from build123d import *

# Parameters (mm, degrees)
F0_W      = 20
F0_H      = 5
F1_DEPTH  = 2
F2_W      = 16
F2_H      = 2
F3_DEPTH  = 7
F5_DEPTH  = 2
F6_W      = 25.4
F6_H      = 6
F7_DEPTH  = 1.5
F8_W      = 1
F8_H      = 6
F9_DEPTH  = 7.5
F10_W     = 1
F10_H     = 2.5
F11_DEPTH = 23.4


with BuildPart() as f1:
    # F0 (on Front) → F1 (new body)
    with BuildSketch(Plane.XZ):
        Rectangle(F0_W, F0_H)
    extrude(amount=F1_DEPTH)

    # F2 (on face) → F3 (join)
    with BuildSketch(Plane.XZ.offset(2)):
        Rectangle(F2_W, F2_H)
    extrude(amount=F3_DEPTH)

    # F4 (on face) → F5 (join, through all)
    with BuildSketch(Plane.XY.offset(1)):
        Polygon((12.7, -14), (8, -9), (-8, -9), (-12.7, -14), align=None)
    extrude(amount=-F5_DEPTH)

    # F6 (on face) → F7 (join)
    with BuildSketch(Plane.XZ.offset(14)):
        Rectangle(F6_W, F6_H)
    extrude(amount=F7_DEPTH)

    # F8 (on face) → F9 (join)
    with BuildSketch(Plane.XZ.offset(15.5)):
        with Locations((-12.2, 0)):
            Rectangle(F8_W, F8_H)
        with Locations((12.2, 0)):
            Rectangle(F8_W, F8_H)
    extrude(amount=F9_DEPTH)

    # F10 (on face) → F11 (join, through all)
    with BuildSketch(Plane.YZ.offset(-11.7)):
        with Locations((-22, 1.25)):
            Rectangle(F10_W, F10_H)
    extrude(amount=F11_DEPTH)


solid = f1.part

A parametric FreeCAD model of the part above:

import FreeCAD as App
import Part
import Sketcher
Q = App.Units.Quantity


def add_polygon(sketch, points):
    """Adds a closed chain of lines whose ends are joined by coincident constraints."""
    first, n = sketch.GeometryCount, len(points)
    for a, b in zip(points, points[1:] + points[:1]):
        sketch.addGeometry(Part.LineSegment(App.Vector(*a, 0), App.Vector(*b, 0)), False)
    for i in range(n):
        sketch.addConstraint(Sketcher.Constraint("Coincident", first + i, 2, first + (i + 1) % n, 1))

doc = App.newDocument("Part")
body = doc.addObject("PartDesign::Body", "Body")

sketch1 = body.newObject("Sketcher::SketchObject", "Sketch")
sketch1.AttachmentSupport = (doc.getObject("XZ_Plane"), [""])
sketch1.MapMode = "FlatFace"
add_polygon(sketch1, [(-10, 2), (-10, -2), (10, -2), (10, 2)])
sketch1.addConstraint([
    Sketcher.Constraint("Vertical", 0),
    Sketcher.Constraint("Horizontal", 1),
    Sketcher.Constraint("Vertical", 2),
    Sketcher.Constraint("Horizontal", 3),
    Sketcher.Constraint("Symmetric", 0, 2, 2, 2, -1, 1),
    Sketcher.Constraint("DistanceX", 1, 1, 1, 2, Q("20 mm")),
    Sketcher.Constraint("DistanceY", 0, 2, 0, 1, Q("5 mm")),
])
pad1 = body.newObject("PartDesign::Pad", "Pad")
pad1.Profile = sketch1
pad1.Length = 2

sketch2 = body.newObject("Sketcher::SketchObject", "Sketch001")
sketch2.AttachmentSupport = (doc.getObject("XZ_Plane"), [""])
sketch2.MapMode = "FlatFace"
sketch2.AttachmentOffset = App.Placement(App.Vector(0, 0, 2), App.Rotation())
add_polygon(sketch2, [(-8, 1), (-8, -1), (8, -1), (8, 1)])
sketch2.addConstraint([
    Sketcher.Constraint("Vertical", 0),
    Sketcher.Constraint("Horizontal", 1),
    Sketcher.Constraint("Vertical", 2),
    Sketcher.Constraint("Horizontal", 3),
    Sketcher.Constraint("Symmetric", 0, 2, 2, 2, -1, 1),
    Sketcher.Constraint("DistanceX", 1, 1, 1, 2, Q("16 mm")),
    Sketcher.Constraint("DistanceY", 0, 2, 0, 1, Q("2 mm")),
])
pad2 = body.newObject("PartDesign::Pad", "Pad001")
pad2.Profile = sketch2
pad2.Length = 7

sketch3 = body.newObject("Sketcher::SketchObject", "Sketch002")
sketch3.AttachmentSupport = (doc.getObject("XY_Plane"), [""])
sketch3.MapMode = "FlatFace"
sketch3.AttachmentOffset = App.Placement(App.Vector(0, 0, 1), App.Rotation())
add_polygon(sketch3, [(13, -14), (8, -9), (-8, -9), (-13, -14)])
sketch3.addConstraint([
    Sketcher.Constraint("Horizontal", 1),
    Sketcher.Constraint("Horizontal", 3),
    Sketcher.Constraint("Equal", 0, 2),
    Sketcher.Constraint("DistanceX", 1, 2, 1, 1, Q("16 mm")),
    Sketcher.Constraint("DistanceX", 3, 1, 3, 2, Q("25.4 mm")),
    Sketcher.Constraint("DistanceX", -1, 1, 0, 2, Q("8 mm")),
    Sketcher.Constraint("DistanceY", 0, 2, -1, 1, Q("9 mm")),
    Sketcher.Constraint("DistanceY", 2, 2, -1, 1, Q("14 mm")),
])
pad3 = body.newObject("PartDesign::Pad", "Pad002")
pad3.Profile = sketch3
pad3.Length = 2
pad3.Reversed = True

sketch4 = body.newObject("Sketcher::SketchObject", "Sketch003")
sketch4.AttachmentSupport = (doc.getObject("XZ_Plane"), [""])
sketch4.MapMode = "FlatFace"
sketch4.AttachmentOffset = App.Placement(App.Vector(0, 0, 14), App.Rotation())
add_polygon(sketch4, [(-13, 3), (-13, -3), (13, -3), (13, 3)])
sketch4.addConstraint([
    Sketcher.Constraint("Vertical", 0),
    Sketcher.Constraint("Horizontal", 1),
    Sketcher.Constraint("Vertical", 2),
    Sketcher.Constraint("Horizontal", 3),
    Sketcher.Constraint("Symmetric", 0, 2, 2, 2, -1, 1),
    Sketcher.Constraint("DistanceY", 0, 2, 0, 1, Q("6 mm")),
    Sketcher.Constraint("DistanceX", 1, 1, 1, 2, Q("25.4 mm")),
])
pad4 = body.newObject("PartDesign::Pad", "Pad003")
pad4.Profile = sketch4
pad4.Length = 1.5

sketch5 = body.newObject("Sketcher::SketchObject", "Sketch004")
sketch5.AttachmentSupport = (doc.getObject("XZ_Plane"), [""])
sketch5.MapMode = "FlatFace"
sketch5.AttachmentOffset = App.Placement(App.Vector(0, 0, 15.5), App.Rotation())
add_polygon(sketch5, [(-12.7, 3), (-12.7, -3), (-11.7, -3), (-11.7, 3)])
add_polygon(sketch5, [(11.7, 3), (11.7, -3), (12.7, -3), (12.7, 3)])
sketch5.addConstraint([
    Sketcher.Constraint("Vertical", 0),
    Sketcher.Constraint("Horizontal", 1),
    Sketcher.Constraint("Vertical", 2),
    Sketcher.Constraint("Horizontal", 3),
    Sketcher.Constraint("Vertical", 4),
    Sketcher.Constraint("Horizontal", 5),
    Sketcher.Constraint("Vertical", 6),
    Sketcher.Constraint("Horizontal", 7),
    Sketcher.Constraint("Symmetric", 2, 2, 4, 2, -1, 1),
    Sketcher.Constraint("Symmetric", 0, 2, 6, 2, -1, 1),
    Sketcher.Constraint("Horizontal", 1, 2, 4, 2),
    Sketcher.Constraint("DistanceX", 1, 1, 1, 2, Q("1 mm")),
    Sketcher.Constraint("DistanceY", 0, 2, 0, 1, Q("6 mm")),
    Sketcher.Constraint("DistanceX", 0, 2, -1, 1, Q("12.7 mm")),
])
pad5 = body.newObject("PartDesign::Pad", "Pad004")
pad5.Profile = sketch5
pad5.Length = 7.5

sketch6 = body.newObject("Sketcher::SketchObject", "Sketch005")
sketch6.AttachmentSupport = (doc.getObject("YZ_Plane"), [""])
sketch6.MapMode = "FlatFace"
sketch6.AttachmentOffset = App.Placement(App.Vector(0, 0, -11.7), App.Rotation())
add_polygon(sketch6, [(-22.5, 2.5), (-22.5, 0), (-21.5, 0), (-21.5, 2.5)])
sketch6.addConstraint([
    Sketcher.Constraint("Vertical", 0),
    Sketcher.Constraint("Horizontal", 1),
    Sketcher.Constraint("Vertical", 2),
    Sketcher.Constraint("Horizontal", 3),
    Sketcher.Constraint("PointOnObject", 0, 2, -1),
    Sketcher.Constraint("DistanceX", 1, 1, 1, 2, Q("1 mm")),
    Sketcher.Constraint("DistanceY", 0, 2, 0, 1, Q("2.5 mm")),
    Sketcher.Constraint("DistanceX", 0, 2, -1, 1, Q("22.5 mm")),
])
pad6 = body.newObject("PartDesign::Pad", "Pad005")
pad6.Profile = sketch6
pad6.Type = "UpToLast"

doc.recompute()
